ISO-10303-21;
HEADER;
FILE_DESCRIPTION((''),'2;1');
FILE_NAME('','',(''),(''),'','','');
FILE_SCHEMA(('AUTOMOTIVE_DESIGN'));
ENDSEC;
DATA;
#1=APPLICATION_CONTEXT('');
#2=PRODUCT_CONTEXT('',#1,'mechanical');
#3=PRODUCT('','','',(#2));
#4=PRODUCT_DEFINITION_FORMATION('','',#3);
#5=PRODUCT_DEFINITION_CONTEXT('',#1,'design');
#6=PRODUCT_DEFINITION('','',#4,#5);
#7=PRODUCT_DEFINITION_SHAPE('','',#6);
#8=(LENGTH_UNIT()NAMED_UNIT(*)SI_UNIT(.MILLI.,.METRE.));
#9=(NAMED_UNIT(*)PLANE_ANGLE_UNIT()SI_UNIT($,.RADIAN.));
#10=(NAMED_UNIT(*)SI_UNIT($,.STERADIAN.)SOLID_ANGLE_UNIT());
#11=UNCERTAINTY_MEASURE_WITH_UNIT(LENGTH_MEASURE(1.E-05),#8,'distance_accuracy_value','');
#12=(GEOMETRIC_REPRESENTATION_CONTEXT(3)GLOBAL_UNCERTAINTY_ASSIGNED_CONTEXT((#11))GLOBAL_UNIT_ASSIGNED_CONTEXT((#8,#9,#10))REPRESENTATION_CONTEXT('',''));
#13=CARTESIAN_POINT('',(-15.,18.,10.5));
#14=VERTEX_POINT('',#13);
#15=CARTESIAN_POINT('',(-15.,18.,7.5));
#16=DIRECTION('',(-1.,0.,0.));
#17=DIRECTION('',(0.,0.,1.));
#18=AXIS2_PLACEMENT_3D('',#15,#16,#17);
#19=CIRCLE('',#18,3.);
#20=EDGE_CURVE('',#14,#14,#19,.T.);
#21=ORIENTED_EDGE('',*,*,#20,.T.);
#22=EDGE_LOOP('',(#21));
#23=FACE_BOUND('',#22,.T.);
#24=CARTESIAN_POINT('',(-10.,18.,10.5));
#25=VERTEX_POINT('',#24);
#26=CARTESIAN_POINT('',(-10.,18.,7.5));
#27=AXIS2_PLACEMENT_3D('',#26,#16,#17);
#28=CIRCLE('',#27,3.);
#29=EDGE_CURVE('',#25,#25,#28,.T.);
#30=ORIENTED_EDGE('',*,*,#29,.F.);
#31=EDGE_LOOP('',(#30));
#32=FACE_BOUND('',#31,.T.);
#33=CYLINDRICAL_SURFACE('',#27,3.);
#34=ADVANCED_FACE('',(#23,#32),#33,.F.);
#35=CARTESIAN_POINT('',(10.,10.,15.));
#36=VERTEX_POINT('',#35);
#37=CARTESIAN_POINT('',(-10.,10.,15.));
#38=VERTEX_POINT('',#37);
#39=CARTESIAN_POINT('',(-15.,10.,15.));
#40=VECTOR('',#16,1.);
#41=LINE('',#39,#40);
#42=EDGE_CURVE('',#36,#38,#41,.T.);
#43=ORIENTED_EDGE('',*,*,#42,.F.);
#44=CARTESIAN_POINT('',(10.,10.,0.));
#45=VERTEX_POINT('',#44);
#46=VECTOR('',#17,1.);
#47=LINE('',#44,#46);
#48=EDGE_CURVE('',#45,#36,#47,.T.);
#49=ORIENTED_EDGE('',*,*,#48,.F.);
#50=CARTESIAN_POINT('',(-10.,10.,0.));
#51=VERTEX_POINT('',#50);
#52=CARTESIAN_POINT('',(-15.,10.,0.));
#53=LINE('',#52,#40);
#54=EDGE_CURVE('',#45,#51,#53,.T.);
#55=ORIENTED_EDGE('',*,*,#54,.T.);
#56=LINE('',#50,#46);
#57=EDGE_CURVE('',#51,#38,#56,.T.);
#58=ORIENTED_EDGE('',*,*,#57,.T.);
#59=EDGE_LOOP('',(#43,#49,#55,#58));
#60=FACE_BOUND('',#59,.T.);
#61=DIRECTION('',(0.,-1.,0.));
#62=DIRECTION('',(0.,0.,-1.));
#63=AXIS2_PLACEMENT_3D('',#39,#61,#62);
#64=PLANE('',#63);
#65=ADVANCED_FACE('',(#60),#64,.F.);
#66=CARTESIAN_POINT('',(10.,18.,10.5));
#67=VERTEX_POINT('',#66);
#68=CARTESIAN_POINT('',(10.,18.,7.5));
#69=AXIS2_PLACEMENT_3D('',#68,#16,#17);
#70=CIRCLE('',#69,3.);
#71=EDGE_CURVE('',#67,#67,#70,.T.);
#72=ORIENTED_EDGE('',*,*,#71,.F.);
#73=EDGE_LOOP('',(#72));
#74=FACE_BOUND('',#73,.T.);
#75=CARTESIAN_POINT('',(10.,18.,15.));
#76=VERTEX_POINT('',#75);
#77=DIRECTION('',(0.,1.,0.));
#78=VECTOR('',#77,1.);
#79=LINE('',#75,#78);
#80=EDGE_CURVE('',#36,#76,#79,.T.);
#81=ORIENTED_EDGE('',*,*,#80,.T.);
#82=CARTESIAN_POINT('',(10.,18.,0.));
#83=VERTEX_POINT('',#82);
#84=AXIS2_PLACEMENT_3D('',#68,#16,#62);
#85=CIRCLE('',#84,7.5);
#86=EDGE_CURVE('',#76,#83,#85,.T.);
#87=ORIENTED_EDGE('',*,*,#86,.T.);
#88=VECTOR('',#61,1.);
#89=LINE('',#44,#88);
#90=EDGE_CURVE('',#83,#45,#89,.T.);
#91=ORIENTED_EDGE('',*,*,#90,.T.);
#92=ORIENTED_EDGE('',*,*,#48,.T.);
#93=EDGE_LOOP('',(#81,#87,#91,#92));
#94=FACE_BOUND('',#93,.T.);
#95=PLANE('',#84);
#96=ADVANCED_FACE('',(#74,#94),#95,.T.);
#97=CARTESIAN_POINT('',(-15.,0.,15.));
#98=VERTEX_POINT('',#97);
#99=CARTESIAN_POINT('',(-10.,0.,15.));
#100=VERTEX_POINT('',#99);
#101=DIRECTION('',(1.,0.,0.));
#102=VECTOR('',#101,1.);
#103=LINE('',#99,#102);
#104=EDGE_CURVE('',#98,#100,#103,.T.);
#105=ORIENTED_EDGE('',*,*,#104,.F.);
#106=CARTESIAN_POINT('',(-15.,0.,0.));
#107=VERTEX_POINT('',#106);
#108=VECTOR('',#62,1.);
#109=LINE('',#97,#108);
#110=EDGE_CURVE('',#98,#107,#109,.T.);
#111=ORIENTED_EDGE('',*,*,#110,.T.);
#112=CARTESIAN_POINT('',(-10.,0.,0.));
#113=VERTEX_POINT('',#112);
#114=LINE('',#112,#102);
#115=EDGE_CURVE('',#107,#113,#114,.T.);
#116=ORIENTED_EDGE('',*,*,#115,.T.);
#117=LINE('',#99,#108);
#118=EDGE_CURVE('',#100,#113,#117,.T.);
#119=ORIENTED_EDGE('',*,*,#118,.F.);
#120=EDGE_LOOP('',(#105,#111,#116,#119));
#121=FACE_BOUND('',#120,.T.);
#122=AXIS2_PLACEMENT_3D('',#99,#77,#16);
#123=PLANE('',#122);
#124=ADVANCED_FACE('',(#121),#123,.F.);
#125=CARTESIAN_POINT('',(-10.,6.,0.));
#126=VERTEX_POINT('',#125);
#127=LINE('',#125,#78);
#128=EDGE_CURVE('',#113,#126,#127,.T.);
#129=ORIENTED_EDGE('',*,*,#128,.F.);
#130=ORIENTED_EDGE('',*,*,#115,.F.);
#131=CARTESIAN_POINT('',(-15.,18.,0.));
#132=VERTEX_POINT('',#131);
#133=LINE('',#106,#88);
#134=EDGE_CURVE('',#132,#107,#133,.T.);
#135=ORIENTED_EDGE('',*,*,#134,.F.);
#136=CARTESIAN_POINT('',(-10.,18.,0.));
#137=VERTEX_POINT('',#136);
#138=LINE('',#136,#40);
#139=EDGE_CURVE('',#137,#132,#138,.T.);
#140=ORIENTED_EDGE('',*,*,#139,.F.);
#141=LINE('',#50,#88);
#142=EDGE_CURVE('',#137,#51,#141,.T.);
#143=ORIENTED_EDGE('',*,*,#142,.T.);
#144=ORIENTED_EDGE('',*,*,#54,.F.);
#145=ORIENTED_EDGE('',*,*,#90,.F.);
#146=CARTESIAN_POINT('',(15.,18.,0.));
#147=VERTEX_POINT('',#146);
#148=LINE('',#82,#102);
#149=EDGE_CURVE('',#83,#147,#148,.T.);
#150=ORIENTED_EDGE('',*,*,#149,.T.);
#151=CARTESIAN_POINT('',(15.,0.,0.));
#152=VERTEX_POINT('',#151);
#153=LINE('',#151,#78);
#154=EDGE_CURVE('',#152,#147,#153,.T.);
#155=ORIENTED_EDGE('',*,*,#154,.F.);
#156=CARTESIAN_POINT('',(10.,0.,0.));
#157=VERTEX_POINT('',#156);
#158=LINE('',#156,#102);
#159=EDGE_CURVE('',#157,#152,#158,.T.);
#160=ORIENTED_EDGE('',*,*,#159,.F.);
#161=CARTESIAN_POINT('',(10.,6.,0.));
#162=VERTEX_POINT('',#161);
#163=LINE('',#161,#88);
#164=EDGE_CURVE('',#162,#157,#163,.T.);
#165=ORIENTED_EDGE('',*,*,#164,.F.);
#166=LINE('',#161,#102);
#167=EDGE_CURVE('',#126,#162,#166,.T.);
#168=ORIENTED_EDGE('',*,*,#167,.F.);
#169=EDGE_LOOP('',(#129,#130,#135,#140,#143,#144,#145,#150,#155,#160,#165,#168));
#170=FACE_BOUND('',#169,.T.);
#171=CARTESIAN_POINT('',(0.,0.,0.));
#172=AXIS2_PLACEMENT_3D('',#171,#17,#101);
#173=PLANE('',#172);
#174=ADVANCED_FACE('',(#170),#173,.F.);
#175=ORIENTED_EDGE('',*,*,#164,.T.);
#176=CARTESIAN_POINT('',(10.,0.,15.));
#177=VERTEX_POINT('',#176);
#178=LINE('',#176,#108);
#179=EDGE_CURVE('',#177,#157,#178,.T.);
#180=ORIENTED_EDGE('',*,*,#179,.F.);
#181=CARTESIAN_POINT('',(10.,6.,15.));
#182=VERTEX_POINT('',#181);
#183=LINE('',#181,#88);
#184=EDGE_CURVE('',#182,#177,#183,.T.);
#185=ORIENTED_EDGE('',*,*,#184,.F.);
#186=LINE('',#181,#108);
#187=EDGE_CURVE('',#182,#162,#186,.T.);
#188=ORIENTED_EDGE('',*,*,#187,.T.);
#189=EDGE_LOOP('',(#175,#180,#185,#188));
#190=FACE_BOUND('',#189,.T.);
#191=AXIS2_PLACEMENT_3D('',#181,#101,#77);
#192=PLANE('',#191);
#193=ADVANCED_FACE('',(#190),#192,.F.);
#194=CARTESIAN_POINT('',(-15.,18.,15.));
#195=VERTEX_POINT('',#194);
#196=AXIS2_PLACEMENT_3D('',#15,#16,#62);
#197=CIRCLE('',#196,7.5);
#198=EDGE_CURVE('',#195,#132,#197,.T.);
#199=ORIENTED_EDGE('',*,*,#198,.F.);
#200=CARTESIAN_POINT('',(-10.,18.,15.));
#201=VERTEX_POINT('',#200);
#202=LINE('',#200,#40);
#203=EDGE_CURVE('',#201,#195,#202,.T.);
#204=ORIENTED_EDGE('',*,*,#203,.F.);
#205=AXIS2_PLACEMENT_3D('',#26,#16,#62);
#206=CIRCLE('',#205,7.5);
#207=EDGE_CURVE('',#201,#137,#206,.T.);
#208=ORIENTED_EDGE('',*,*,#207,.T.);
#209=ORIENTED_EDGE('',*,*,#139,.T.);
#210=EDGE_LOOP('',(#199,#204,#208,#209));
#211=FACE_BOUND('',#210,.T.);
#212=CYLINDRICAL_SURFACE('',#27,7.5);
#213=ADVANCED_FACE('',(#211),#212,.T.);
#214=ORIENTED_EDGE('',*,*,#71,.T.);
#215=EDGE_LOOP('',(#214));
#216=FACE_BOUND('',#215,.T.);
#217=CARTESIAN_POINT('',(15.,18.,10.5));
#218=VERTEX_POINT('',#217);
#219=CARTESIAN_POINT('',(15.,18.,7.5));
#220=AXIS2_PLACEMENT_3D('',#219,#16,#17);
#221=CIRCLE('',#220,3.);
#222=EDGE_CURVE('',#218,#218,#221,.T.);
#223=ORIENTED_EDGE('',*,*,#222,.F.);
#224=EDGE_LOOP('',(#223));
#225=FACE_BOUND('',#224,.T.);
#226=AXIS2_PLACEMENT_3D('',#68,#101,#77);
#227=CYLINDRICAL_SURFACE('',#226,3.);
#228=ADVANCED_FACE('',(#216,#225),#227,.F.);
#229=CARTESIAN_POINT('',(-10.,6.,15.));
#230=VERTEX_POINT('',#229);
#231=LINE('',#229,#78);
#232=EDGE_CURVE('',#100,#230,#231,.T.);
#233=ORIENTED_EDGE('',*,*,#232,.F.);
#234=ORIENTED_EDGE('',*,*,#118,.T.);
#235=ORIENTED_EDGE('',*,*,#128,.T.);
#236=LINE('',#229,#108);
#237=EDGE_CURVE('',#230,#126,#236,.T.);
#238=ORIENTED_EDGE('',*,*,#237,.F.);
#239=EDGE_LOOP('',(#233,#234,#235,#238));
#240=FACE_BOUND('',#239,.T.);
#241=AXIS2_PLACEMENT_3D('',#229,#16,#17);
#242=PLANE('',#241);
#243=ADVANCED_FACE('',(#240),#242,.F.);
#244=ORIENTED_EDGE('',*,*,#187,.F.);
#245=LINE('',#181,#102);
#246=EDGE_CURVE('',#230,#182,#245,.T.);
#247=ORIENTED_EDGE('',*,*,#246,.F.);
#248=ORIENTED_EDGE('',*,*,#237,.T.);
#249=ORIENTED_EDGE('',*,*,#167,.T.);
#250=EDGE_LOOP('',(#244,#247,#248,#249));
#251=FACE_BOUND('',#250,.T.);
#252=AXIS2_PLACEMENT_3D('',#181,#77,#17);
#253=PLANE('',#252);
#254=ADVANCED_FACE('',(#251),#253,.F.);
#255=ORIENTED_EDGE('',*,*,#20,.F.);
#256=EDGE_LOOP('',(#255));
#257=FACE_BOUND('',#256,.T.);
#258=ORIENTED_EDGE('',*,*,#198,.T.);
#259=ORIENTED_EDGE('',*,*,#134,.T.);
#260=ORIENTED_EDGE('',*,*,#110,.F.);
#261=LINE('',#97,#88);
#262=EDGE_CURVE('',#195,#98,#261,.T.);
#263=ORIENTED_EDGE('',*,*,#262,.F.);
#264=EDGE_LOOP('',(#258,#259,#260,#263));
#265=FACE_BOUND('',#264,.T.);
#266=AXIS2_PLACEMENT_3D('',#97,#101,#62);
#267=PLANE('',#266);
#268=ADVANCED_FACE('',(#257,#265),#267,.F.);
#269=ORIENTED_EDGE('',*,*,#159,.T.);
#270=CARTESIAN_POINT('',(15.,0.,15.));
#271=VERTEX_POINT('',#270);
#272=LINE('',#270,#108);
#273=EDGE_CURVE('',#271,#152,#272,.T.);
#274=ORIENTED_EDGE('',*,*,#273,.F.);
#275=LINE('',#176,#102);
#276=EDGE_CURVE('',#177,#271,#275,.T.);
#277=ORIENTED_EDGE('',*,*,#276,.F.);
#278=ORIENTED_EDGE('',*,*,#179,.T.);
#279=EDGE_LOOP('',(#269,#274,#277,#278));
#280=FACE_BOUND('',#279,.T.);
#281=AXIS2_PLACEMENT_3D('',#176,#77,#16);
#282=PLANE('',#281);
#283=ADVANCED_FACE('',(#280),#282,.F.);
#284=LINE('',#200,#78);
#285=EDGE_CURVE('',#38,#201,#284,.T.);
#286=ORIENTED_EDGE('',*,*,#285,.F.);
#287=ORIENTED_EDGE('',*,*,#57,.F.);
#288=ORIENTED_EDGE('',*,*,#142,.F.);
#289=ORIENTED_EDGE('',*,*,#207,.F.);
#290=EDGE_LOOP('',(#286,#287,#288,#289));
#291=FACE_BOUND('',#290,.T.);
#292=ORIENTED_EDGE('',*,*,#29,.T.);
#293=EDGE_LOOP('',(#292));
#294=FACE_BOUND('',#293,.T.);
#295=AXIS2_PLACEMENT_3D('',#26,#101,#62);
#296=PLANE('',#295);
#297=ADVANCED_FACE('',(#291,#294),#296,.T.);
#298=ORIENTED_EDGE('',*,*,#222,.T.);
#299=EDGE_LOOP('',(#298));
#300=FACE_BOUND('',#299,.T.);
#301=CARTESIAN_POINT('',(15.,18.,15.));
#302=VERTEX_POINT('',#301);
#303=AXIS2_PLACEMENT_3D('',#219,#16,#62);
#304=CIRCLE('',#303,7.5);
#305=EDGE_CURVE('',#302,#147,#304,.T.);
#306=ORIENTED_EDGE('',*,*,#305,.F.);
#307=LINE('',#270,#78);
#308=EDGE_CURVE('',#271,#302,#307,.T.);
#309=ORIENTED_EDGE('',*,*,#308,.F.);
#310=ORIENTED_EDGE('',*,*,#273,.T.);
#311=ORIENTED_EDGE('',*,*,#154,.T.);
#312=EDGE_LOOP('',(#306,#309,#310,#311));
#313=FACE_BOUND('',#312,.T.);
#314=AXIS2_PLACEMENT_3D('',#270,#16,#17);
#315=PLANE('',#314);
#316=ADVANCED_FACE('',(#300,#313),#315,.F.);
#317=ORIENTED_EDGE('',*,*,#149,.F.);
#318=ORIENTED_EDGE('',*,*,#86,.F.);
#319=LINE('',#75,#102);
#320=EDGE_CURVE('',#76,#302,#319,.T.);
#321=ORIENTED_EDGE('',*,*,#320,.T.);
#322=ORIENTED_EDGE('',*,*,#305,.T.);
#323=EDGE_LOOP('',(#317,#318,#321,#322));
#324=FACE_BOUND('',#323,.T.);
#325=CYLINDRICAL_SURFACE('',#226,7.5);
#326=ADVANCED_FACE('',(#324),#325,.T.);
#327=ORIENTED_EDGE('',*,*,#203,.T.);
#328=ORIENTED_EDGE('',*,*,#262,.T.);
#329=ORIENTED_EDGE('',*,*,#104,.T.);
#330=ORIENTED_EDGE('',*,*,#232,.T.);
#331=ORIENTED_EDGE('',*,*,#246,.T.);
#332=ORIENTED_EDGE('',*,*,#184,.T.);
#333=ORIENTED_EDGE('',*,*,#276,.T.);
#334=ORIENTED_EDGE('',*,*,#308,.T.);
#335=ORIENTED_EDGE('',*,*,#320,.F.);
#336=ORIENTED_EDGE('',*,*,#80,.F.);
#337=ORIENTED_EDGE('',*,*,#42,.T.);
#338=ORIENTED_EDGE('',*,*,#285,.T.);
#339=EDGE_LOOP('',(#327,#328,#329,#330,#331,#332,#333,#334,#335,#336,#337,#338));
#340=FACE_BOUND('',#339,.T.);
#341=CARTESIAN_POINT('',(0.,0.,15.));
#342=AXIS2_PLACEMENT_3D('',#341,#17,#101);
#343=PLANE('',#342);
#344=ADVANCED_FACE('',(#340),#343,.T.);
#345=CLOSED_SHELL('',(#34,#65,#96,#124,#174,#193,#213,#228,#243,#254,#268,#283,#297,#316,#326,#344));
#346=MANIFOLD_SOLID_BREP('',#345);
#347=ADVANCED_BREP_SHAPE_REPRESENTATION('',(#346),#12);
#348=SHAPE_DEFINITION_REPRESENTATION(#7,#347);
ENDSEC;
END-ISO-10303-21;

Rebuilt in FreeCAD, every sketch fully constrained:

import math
import FreeCAD as App
import Part
import Sketcher

V = App.Vector
Q = App.Units.Quantity


def add_polygon(sketch, points):
    """Adds a closed chain of lines whose ends are joined by coincident constraints."""
    first, n = sketch.GeometryCount, len(points)
    for a, b in zip(points, points[1:] + points[:1]):
        sketch.addGeometry(Part.LineSegment(App.Vector(*a, 0), App.Vector(*b, 0)), False)
    for i in range(n):
        sketch.addConstraint(Sketcher.Constraint("Coincident", first + i, 2, first + (i + 1) % n, 1))

doc = App.newDocument("Part")
params = doc.addObject("Spreadsheet::Sheet", "Params")
for row, (alias, value) in enumerate([
    ("sketch1_width", "20 mm"),
    ("sketch1_width2", "5 mm"),
    ("sketch1_height", "6 mm"),
    ("sketch1_height2", "10 mm"),
    ("pad1_length", "15 mm"),
    ("sketch2_radius", "7.5 mm"),
    ("sketch2_width", "8 mm"),
    ("pad2_length", "5 mm"),
    ("sketch3_diameter", "6 mm"),
    ("pocket1_length", "5 mm"),
], start=1):
    params.set(f"A{row}", alias)
    params.set(f"B{row}", "=" + value)
    params.setAlias(f"B{row}", alias)

body = doc.addObject("PartDesign::Body", "Body")

sketch1 = body.newObject("Sketcher::SketchObject", "Sketch")
sketch1.AttachmentSupport = (doc.getObject("XY_Plane"), [""])
sketch1.MapMode = "FlatFace"
add_polygon(sketch1, [(-10, 6), (10, 6), (10, 0), (15, 0), (15, 10), (-15, 10), (-15, 0), (-10, 0)])
sketch1.addConstraint(Sketcher.Constraint("Horizontal", 0))
sketch1.addConstraint(Sketcher.Constraint("Vertical", 1))
sketch1.addConstraint(Sketcher.Constraint("Horizontal", 2))
sketch1.addConstraint(Sketcher.Constraint("Vertical", 3))
sketch1.addConstraint(Sketcher.Constraint("Horizontal", 4))
sketch1.addConstraint(Sketcher.Constraint("Vertical", 5))
sketch1.addConstraint(Sketcher.Constraint("Horizontal", 6))
sketch1.addConstraint(Sketcher.Constraint("Vertical", 7))
sketch1.addConstraint(Sketcher.Constraint("Symmetric", 2, 2, 5, 2, -1, 1))
sketch1.addConstraint(Sketcher.Constraint("Symmetric", 1, 2, 6, 2, -2))
sketch1.addConstraint(Sketcher.Constraint("DistanceX", 0, 1, 0, 2, Q("20 mm")))
sketch1.addConstraint(Sketcher.Constraint("DistanceX", 2, 1, 2, 2, Q("5 mm")))
sketch1.addConstraint(Sketcher.Constraint("DistanceY", 1, 2, 1, 1, Q("6 mm")))
sketch1.addConstraint(Sketcher.Constraint("DistanceY", 3, 1, 3, 2, Q("10 mm")))
sketch1.setExpression("Constraints[18]", "Params.sketch1_width")
sketch1.setExpression("Constraints[19]", "Params.sketch1_width2")
sketch1.setExpression("Constraints[20]", "Params.sketch1_height")
sketch1.setExpression("Constraints[21]", "Params.sketch1_height2")
pad1 = body.newObject("PartDesign::Pad", "Pad")
pad1.Profile = sketch1
pad1.setExpression("Length", "Params.pad1_length")

sketch2 = body.newObject("Sketcher::SketchObject", "Sketch001")
sketch2.AttachmentSupport = (doc.getObject("YZ_Plane"), [""])
sketch2.MapMode = "FlatFace"
sketch2.AttachmentOffset = App.Placement(V(0, 0, -15), App.Rotation())
sketch2.addGeometry(Part.LineSegment(V(18, 0, 0), V(10, 0, 0)), False)
sketch2.addGeometry(Part.LineSegment(V(10, 0, 0), V(10, 15, 0)), False)
sketch2.addGeometry(Part.LineSegment(V(10, 15, 0), V(18, 15, 0)), False)
sketch2.addGeometry(Part.ArcOfCircle(Part.Circle(V(18, 7.5, 0), V(0, 0, 1), 7.5), math.radians(-90), math.radians(90)), False)
sketch2.addConstraint(Sketcher.Constraint("Coincident", 0, 2, 1, 1))
sketch2.addConstraint(Sketcher.Constraint("Coincident", 1, 2, 2, 1))
sketch2.addConstraint(Sketcher.Constraint("Tangent", 2, 2, 3, 2))
sketch2.addConstraint(Sketcher.Constraint("Tangent", 3, 1, 0, 1))
sketch2.addConstraint(Sketcher.Constraint("Horizontal", 0))
sketch2.addConstraint(Sketcher.Constraint("Vertical", 1))
sketch2.addConstraint(Sketcher.Constraint("Horizontal", 2))
sketch2.addConstraint(Sketcher.Constraint("PointOnObject", 0, 2, -1))
sketch2.addConstraint(Sketcher.Constraint("Radius", 3, Q("7.5 mm")))
sketch2.addConstraint(Sketcher.Constraint("DistanceX", 0, 2, 0, 1, Q("8 mm")))
sketch2.addConstraint(Sketcher.Constraint("DistanceX", -1, 1, 3, 3, Q("18 mm")))
sketch2.setExpression("Constraints[8]", "Params.sketch2_radius")
sketch2.setExpression("Constraints[9]", "Params.sketch2_width")
pad2 = body.newObject("PartDesign::Pad", "Pad001")
pad2.Profile = sketch2
pad2.setExpression("Length", "Params.pad2_length")

sketch3 = body.newObject("Sketcher::SketchObject", "Sketch002")
sketch3.AttachmentSupport = (doc.getObject("YZ_Plane"), [""])
sketch3.MapMode = "FlatFace"
sketch3.AttachmentOffset = App.Placement(V(0, 0, -15), App.Rotation())
sketch3.addGeometry(Part.Circle(V(18, 7.5, 0), V(0, 0, 1), 3), False)
sketch3.addConstraint(Sketcher.Constraint("Diameter", 0, Q("6 mm")))
sketch3.addConstraint(Sketcher.Constraint("DistanceX", -1, 1, 0, 3, Q("18 mm")))
sketch3.addConstraint(Sketcher.Constraint("DistanceY", -1, 1, 0, 3, Q("7.5 mm")))
sketch3.setExpression("Constraints[0]", "Params.sketch3_diameter")
pocket1 = body.newObject("PartDesign::Pocket", "Pocket")
pocket1.Profile = sketch3
pocket1.setExpression("Length", "Params.pocket1_length")
pocket1.Reversed = True
doc.recompute()

mirrored = body.newObject("PartDesign::Mirrored", "Mirrored")
mirrored.Originals = [pad2, pocket1]
mirrored.MirrorPlane = (doc.getObject("YZ_Plane"), [""])
body.Tip = mirrored

doc.recompute()
